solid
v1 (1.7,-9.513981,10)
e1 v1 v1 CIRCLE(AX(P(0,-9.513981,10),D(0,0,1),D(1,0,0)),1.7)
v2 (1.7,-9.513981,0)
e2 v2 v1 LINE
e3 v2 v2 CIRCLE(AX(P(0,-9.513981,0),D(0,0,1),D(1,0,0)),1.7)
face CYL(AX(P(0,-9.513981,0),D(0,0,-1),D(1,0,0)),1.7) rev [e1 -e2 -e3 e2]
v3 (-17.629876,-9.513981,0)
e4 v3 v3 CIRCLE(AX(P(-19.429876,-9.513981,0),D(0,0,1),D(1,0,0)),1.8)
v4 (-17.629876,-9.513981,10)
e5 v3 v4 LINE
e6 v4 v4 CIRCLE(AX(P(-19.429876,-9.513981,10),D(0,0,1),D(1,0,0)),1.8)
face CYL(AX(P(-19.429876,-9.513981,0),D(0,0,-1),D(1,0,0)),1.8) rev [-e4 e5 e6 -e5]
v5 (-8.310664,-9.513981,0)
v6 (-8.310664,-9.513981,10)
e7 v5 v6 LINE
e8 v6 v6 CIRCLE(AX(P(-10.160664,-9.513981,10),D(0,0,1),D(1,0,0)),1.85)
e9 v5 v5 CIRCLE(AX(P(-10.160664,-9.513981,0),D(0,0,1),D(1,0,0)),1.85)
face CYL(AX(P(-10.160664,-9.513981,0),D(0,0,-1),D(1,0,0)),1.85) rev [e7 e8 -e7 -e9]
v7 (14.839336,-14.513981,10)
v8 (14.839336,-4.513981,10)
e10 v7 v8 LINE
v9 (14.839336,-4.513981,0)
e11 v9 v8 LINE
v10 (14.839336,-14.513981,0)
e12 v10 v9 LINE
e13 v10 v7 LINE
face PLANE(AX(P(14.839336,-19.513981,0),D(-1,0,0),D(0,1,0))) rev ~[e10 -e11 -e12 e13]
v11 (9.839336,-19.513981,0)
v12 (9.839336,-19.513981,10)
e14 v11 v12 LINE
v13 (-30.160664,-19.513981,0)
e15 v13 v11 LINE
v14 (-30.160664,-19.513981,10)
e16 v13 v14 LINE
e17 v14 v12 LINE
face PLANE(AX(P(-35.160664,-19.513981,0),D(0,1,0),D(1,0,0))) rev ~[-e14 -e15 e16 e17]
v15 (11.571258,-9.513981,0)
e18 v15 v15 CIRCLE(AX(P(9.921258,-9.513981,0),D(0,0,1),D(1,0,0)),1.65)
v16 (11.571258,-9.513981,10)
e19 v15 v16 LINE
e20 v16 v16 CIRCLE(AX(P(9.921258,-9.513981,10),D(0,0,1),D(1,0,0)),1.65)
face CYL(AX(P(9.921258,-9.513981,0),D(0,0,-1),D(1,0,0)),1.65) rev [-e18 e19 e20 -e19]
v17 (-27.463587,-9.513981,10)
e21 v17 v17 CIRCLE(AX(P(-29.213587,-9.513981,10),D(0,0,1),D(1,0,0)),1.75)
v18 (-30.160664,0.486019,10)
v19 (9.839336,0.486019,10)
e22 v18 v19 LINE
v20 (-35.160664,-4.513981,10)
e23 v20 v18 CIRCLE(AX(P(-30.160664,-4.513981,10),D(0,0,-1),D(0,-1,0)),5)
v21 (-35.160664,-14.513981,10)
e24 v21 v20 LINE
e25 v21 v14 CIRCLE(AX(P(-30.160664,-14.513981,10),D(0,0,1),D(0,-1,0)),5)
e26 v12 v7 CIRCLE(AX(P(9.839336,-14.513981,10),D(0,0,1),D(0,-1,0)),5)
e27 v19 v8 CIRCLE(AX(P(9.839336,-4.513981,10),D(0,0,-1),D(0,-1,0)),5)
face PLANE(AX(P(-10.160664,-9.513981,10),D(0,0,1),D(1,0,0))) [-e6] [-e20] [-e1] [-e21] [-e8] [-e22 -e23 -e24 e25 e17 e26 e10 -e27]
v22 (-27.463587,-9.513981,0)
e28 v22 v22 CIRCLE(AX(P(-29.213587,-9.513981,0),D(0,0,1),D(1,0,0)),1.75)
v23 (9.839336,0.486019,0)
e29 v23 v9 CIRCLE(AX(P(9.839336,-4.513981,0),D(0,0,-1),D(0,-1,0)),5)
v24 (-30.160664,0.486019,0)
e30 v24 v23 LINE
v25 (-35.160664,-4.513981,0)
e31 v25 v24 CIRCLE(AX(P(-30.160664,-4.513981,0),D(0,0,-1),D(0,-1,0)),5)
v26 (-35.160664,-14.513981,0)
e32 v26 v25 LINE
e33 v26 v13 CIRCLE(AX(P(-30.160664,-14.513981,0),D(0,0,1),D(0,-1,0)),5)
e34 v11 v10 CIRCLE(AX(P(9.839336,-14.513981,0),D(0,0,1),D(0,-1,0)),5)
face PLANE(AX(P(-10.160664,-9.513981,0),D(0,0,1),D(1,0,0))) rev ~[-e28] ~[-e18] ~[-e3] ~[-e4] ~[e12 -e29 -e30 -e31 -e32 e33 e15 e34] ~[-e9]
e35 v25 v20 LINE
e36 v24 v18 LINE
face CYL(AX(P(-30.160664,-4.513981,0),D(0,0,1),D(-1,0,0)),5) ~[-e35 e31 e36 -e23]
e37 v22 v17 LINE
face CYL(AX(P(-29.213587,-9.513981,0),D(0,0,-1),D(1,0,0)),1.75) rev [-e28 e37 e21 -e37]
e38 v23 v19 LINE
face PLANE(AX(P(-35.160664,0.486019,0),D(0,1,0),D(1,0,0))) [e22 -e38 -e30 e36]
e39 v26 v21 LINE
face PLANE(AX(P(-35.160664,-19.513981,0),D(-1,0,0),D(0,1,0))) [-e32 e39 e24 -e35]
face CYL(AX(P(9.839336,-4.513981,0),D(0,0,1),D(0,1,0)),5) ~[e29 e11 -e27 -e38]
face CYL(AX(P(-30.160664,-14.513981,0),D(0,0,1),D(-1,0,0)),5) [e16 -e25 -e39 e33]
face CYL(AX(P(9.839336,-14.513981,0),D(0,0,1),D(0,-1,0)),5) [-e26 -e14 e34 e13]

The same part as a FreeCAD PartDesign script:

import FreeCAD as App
import Part
import Sketcher

V = App.Vector


def edges_at(feature, points):
    """Names of the edges that pass closest to the given points."""
    edges = feature.Shape.Edges
    near = lambda p: min(range(len(edges)), key=lambda i: edges[i].distToShape(Part.Vertex(*p))[0])
    return sorted({f"Edge{near(p) + 1}" for p in points})

doc = App.newDocument("Part")
params = doc.addObject("Spreadsheet::Sheet", "Params")
for row, (alias, value) in enumerate([
    ("sketch1_diameter", "3.5 mm"),
    ("sketch1_diameter2", "3.6 mm"),
    ("sketch1_diameter3", "3.7 mm"),
    ("sketch1_diameter4", "3.4 mm"),
    ("sketch1_diameter5", "3.3 mm"),
    ("pad1_length", "10 mm"),
    ("fillet_radius", "5 mm"),
], start=1):
    params.set(f"A{row}", alias)
    params.set(f"B{row}", "=" + value)
    params.setAlias(f"B{row}", alias)

body = doc.addObject("PartDesign::Body", "Body")

# Sketch on XY plane
sketch1 = body.newObject("Sketcher::SketchObject", "Sketch")
sketch1.AttachmentSupport = (doc.getObject("XY_Plane"), [""])
sketch1.MapMode = "FlatFace"
sketch1.addGeometry([
    Part.LineSegment(V(-35.160664, 0.486019, 0), V(-35.160664, -19.513981, 0)),  # 0
    Part.LineSegment(V(-35.160664, -19.513981, 0), V(14.839336, -19.513981, 0)),  # 1
    Part.LineSegment(V(14.839336, -19.513981, 0), V(14.839336, 0.486019, 0)),  # 2
    Part.LineSegment(V(14.839336, 0.486019, 0), V(-35.160664, 0.486019, 0)),  # 3
    Part.Circle(V(-29.213587, -9.513981, 0), V(0, 0, 1), 1.75),  # 4
    Part.Circle(V(-19.429876, -9.513981, 0), V(0, 0, 1), 1.8),  # 5
    Part.Circle(V(-10.160664, -9.513981, 0), V(0, 0, 1), 1.85),  # 6
    Part.Circle(V(0, -9.513981, 0), V(0, 0, 1), 1.7),  # 7
    Part.Circle(V(9.921258, -9.513981, 0), V(0, 0, 1), 1.65),  # 8
], False)
sketch1.addConstraint([
    Sketcher.Constraint("Coincident", 0, 2, 1, 1),
    Sketcher.Constraint("Coincident", 1, 2, 2, 1),
    Sketcher.Constraint("Coincident", 2, 2, 3, 1),
    Sketcher.Constraint("Coincident", 3, 2, 0, 1),
    Sketcher.Constraint("Vertical", 0),
    Sketcher.Constraint("Horizontal", 1),
    Sketcher.Constraint("Vertical", 2),
    Sketcher.Constraint("Horizontal", 3),
    Sketcher.Constraint("PointOnObject", 7, 3, -2),
    Sketcher.Constraint("Horizontal", 4, 3, 5, 3),
    Sketcher.Constraint("Horizontal", 5, 3, 6, 3),
    Sketcher.Constraint("Horizontal", 6, 3, 7, 3),
    Sketcher.Constraint("Horizontal", 7, 3, 8, 3),
    Sketcher.Constraint("Diameter", 4, 3.5),
    Sketcher.Constraint("Diameter", 5, 3.6),
    Sketcher.Constraint("Diameter", 6, 3.7),
    Sketcher.Constraint("Diameter", 7, 3.4),
    Sketcher.Constraint("Diameter", 8, 3.3),
    Sketcher.Constraint("DistanceX", 1, 1, 1, 2, 50.0),
    Sketcher.Constraint("DistanceY", 0, 2, 0, 1, 20.0),
    Sketcher.Constraint("DistanceY", 0, 2, 4, 3, 10.0),
    Sketcher.Constraint("DistanceX", 0, 2, 6, 3, 25.0),
    Sketcher.Constraint("DistanceY", 4, 3, -1, 1, 9.513981),
    Sketcher.Constraint("DistanceX", 4, 3, 5, 3, 9.783711),
    Sketcher.Constraint("DistanceX", 6, 3, 8, 3, 20.081922),
    Sketcher.Constraint("DistanceX", 5, 3, 1, 2, 34.269212),
    Sketcher.Constraint("DistanceX", 4, 3, -1, 1, 29.213587),
])
sketch1.setExpression("Constraints[13]", "Params.sketch1_diameter")
sketch1.setExpression("Constraints[14]", "Params.sketch1_diameter2")
sketch1.setExpression("Constraints[15]", "Params.sketch1_diameter3")
sketch1.setExpression("Constraints[16]", "Params.sketch1_diameter4")
sketch1.setExpression("Constraints[17]", "Params.sketch1_diameter5")
pad1 = body.newObject("PartDesign::Pad", "Pad")
pad1.Profile = sketch1
pad1.setExpression("Length", "Params.pad1_length")
doc.recompute()

fillet = body.newObject("PartDesign::Fillet", "Fillet")
fillet.Base = (pad1, edges_at(pad1, [
    (14.839, 0.486, 5),
    (14.839, -19.514, 5),
    (-35.161, 0.486, 5),
    (-35.161, -19.514, 5),
]))
fillet.setExpression("Radius", "Params.fillet_radius")

doc.recompute()
